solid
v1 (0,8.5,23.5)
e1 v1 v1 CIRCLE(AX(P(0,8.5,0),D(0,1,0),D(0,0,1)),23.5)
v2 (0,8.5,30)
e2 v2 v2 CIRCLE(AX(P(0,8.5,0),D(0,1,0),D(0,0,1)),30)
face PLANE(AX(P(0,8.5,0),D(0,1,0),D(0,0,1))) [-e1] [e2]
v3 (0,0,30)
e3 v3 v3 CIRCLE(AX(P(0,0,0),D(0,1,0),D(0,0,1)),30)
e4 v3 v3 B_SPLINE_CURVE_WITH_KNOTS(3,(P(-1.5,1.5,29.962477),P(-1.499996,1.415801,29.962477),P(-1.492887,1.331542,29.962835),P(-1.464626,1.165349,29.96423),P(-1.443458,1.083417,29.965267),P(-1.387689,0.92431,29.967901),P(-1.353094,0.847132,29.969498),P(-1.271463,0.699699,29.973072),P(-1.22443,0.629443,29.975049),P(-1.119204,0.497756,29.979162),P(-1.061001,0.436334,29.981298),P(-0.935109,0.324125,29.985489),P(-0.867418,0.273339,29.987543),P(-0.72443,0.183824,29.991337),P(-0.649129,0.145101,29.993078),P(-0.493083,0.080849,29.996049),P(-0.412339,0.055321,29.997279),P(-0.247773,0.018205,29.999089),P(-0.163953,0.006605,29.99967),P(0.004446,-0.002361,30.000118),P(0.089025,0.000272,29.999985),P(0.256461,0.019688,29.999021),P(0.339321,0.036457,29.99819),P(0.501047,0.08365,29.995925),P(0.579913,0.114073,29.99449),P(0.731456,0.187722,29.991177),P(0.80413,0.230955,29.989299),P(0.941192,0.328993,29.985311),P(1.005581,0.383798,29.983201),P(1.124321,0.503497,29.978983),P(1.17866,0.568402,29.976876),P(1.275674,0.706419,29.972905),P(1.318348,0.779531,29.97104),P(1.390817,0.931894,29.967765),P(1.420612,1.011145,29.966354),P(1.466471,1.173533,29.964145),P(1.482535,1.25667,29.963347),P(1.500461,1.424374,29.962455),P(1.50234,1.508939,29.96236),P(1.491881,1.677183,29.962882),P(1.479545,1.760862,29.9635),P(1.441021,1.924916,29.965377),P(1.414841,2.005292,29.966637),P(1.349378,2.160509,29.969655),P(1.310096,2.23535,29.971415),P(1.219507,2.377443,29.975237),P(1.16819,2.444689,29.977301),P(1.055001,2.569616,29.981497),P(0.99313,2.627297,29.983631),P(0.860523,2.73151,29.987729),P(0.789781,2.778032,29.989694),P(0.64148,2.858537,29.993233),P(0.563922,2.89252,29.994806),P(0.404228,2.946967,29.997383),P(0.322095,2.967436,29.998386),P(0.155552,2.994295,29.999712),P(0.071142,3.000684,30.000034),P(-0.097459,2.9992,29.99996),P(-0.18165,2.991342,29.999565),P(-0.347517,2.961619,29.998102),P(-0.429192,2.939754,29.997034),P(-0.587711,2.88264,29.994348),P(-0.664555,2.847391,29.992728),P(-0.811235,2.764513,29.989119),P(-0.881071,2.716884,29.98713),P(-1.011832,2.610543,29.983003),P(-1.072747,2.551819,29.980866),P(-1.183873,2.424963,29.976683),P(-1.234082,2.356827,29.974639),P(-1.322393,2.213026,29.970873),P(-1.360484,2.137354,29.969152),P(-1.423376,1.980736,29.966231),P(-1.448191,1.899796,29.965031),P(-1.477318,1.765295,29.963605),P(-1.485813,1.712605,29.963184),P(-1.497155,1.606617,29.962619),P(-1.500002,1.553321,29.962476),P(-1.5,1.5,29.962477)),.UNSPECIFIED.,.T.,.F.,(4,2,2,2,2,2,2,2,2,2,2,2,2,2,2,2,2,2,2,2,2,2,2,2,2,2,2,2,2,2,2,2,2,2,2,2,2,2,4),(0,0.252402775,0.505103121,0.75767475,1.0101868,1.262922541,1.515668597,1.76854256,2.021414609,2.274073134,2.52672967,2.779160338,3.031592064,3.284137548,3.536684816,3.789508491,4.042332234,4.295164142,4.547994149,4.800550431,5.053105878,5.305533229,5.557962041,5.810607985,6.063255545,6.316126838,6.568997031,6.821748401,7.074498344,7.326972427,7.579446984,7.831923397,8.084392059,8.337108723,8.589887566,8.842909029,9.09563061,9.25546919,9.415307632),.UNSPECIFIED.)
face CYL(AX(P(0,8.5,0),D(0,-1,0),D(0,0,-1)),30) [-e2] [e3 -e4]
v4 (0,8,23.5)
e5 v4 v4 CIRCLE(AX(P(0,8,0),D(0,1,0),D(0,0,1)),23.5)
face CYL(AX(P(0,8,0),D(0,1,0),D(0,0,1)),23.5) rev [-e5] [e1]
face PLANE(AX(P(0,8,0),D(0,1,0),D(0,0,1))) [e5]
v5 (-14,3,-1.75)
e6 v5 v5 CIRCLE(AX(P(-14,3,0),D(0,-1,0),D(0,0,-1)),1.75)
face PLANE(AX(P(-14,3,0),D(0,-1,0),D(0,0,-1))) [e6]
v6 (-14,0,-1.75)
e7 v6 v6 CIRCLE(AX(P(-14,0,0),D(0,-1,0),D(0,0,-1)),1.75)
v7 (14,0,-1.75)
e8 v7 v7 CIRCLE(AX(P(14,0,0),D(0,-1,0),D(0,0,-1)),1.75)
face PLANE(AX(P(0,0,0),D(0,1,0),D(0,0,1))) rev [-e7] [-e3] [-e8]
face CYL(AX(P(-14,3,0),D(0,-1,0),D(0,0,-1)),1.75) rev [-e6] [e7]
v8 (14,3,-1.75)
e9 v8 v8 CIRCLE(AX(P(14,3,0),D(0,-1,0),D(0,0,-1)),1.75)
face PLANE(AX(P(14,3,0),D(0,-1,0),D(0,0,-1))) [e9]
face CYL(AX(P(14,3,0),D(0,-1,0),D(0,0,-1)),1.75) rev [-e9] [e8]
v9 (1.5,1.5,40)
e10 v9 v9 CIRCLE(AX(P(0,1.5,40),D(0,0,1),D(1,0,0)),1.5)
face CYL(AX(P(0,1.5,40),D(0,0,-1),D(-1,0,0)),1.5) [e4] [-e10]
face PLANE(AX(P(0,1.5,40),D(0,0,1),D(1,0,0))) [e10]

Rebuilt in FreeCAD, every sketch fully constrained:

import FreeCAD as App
import Part
import Sketcher

V = App.Vector
Q = App.Units.Quantity

doc = App.newDocument("Part")
body = doc.addObject("PartDesign::Body", "Body")

sketch1 = body.newObject("Sketcher::SketchObject", "Sketch")
sketch1.AttachmentSupport = (doc.getObject("XZ_Plane"), [""])
sketch1.MapMode = "FlatFace"
sketch1.addGeometry(Part.Circle(V(0, 0, 0), V(0, 0, 1), 30), False)
sketch1.addConstraint([
    Sketcher.Constraint("Coincident", 0, 3, -1, 1),
    Sketcher.Constraint("Diameter", 0, Q("60 mm")),
])
pad1 = body.newObject("PartDesign::Pad", "Pad")
pad1.Profile = sketch1
pad1.Length = 8.5
pad1.Reversed = True

sketch2 = body.newObject("Sketcher::SketchObject", "Sketch001")
sketch2.AttachmentSupport = (doc.getObject("XZ_Plane"), [""])
sketch2.MapMode = "FlatFace"
sketch2.AttachmentOffset = App.Placement(V(0, 0, -8.5), App.Rotation())
sketch2.addGeometry(Part.Circle(V(0, 0, 0), V(0, 0, 1), 24), False)
sketch2.addConstraint([
    Sketcher.Constraint("Coincident", 0, 3, -1, 1),
    Sketcher.Constraint("Diameter", 0, Q("47 mm")),
])
pocket1 = body.newObject("PartDesign::Pocket", "Pocket")
pocket1.Profile = sketch2
pocket1.Length = 0.5
pocket1.Reversed = True

sketch3 = body.newObject("Sketcher::SketchObject", "Sketch002")
sketch3.AttachmentSupport = (doc.getObject("XY_Plane"), [""])
sketch3.MapMode = "FlatFace"
sketch3.AttachmentOffset = App.Placement(V(0, 0, 25), App.Rotation())
sketch3.addGeometry(Part.Circle(V(0, 1.5, 0), V(0, 0, 1), 1.5), False)
sketch3.addConstraint([
    Sketcher.Constraint("PointOnObject", 0, 3, -2),
    Sketcher.Constraint("Diameter", 0, Q("3 mm")),
    Sketcher.Constraint("DistanceY", -1, 1, 0, 3, Q("1.5 mm")),
])
pad2 = body.newObject("PartDesign::Pad", "Pad001")
pad2.Profile = sketch3
pad2.Length = 15

sketch4 = body.newObject("Sketcher::SketchObject", "Sketch003")
sketch4.AttachmentSupport = (doc.getObject("XZ_Plane"), [""])
sketch4.MapMode = "FlatFace"
sketch4.addGeometry([
    Part.Circle(V(-14, 0, 0), V(0, 0, 1), 1.8),
    Part.Circle(V(14, 0, 0), V(0, 0, 1), 1.8),
], False)
sketch4.addConstraint([
    Sketcher.Constraint("Equal", 0, 1),
    Sketcher.Constraint("Symmetric", 0, 3, 1, 3, -1, 1),
    Sketcher.Constraint("PointOnObject", 0, 3, -1),
    Sketcher.Constraint("Diameter", 0, Q("3.5 mm")),
    Sketcher.Constraint("DistanceX", 0, 3, -1, 1, Q("14 mm")),
])
pocket2 = body.newObject("PartDesign::Pocket", "Pocket001")
pocket2.Profile = sketch4
pocket2.Length = 3

doc.recompute()
